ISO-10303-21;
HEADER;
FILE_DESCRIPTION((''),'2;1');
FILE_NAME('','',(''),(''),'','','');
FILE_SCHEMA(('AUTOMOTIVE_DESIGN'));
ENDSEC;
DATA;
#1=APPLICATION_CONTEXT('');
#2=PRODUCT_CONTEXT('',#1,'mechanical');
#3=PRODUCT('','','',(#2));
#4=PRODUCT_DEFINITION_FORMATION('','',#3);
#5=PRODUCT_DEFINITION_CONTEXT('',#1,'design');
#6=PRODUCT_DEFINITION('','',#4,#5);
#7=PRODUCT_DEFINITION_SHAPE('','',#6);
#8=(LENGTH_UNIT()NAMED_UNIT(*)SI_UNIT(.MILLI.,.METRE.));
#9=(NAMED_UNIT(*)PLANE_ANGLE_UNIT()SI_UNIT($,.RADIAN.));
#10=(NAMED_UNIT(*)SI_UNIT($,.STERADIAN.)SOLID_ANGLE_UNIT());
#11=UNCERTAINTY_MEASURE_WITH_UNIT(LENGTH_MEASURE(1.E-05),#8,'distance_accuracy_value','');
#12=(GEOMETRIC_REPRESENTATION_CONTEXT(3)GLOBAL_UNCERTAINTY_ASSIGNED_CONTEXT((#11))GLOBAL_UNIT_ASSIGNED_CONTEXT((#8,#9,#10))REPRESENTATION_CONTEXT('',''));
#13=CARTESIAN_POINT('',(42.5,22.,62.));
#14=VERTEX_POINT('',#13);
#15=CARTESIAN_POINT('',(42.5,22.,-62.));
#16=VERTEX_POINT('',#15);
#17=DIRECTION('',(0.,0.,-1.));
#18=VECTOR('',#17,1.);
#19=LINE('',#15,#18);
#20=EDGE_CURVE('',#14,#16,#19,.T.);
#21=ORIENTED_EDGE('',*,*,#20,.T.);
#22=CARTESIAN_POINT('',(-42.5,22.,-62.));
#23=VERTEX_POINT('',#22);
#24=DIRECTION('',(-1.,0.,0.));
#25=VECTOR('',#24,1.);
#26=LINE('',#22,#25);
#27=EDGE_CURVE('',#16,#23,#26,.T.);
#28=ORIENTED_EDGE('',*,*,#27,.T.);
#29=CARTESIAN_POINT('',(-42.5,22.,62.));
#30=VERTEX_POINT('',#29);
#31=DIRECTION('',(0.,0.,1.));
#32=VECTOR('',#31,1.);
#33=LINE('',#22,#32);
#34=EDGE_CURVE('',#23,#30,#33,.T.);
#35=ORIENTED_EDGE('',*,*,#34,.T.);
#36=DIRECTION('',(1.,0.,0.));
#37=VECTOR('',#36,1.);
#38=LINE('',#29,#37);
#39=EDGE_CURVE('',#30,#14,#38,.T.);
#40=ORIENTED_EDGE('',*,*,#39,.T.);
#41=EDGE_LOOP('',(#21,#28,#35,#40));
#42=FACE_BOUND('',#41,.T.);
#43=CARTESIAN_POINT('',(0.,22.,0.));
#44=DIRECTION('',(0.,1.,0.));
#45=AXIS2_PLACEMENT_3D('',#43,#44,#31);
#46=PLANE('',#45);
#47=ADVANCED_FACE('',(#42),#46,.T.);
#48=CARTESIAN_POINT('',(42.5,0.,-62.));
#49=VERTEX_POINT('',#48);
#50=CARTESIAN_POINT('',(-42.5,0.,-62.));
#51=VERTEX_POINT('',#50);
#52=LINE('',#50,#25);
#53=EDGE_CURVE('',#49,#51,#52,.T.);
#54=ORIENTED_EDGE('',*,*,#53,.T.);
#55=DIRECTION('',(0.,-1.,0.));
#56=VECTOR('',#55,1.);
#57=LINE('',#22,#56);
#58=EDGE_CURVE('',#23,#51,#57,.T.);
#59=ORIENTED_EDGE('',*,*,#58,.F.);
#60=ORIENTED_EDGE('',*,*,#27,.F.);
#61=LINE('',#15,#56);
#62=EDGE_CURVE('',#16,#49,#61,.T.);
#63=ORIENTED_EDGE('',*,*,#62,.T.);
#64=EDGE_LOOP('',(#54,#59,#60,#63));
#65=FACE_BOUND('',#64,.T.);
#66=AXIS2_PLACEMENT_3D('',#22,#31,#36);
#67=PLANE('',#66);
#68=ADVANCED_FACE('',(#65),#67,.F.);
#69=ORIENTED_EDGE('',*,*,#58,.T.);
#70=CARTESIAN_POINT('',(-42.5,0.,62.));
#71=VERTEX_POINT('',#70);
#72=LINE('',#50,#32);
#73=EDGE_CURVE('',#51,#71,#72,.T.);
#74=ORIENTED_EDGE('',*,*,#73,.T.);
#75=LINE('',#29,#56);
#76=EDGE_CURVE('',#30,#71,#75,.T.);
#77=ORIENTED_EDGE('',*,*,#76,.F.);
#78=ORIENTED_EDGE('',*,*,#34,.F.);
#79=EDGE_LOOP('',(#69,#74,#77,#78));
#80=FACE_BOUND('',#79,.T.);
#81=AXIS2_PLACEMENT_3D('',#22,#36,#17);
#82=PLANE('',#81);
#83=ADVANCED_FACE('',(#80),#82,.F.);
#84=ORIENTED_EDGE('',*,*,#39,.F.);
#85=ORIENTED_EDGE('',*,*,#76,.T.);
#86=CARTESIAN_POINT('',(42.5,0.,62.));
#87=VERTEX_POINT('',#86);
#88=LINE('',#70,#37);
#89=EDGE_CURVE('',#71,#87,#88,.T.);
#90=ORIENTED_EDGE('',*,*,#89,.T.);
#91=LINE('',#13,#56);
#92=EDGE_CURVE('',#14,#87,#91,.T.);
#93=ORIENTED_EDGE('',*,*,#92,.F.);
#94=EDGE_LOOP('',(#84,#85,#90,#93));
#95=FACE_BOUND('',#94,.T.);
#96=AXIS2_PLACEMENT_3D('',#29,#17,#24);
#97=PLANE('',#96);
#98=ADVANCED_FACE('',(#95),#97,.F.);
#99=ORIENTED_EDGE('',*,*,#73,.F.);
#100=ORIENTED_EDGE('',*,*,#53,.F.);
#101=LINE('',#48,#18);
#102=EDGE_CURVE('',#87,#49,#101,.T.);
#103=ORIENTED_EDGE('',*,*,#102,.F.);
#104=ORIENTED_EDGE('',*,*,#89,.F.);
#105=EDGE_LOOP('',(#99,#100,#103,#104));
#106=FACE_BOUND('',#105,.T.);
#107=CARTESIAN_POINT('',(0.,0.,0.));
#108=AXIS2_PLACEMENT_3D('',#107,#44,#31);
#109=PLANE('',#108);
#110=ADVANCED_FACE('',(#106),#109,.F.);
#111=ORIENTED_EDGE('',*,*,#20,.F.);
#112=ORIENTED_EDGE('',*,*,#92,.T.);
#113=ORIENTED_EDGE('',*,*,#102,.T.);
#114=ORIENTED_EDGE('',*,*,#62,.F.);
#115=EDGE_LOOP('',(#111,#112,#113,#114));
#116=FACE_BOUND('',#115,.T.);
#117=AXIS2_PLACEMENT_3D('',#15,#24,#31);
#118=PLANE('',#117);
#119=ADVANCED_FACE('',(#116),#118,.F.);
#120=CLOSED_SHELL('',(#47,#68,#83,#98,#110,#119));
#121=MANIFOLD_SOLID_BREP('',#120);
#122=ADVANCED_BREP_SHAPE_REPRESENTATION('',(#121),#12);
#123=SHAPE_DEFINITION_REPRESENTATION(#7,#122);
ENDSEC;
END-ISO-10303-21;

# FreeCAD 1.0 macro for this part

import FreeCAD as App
import Part
import Sketcher
from FreeCAD import Vector

doc = App.newDocument("Part")
body = doc.addObject("PartDesign::Body", "Body")

sketch1 = doc.addObject("Sketcher::SketchObject", "Sketch")
body.addObject(sketch1)
sketch1.AttachmentSupport = (doc.XZ_Plane, [""])
sketch1.MapMode = "FlatFace"
sketch1.addGeometry(Part.LineSegment(Vector(-42, -62, 0), Vector(-42, 62, 0)), False)
sketch1.addGeometry(Part.LineSegment(Vector(-42, 62, 0), Vector(42, 62, 0)), False)
sketch1.addGeometry(Part.LineSegment(Vector(42, 62, 0), Vector(42, -62, 0)), False)
sketch1.addGeometry(Part.LineSegment(Vector(42, -62, 0), Vector(-42, -62, 0)), False)
sketch1.addConstraint(Sketcher.Constraint("Coincident", 0, 2, 1, 1))
sketch1.addConstraint(Sketcher.Constraint("Coincident", 1, 2, 2, 1))
sketch1.addConstraint(Sketcher.Constraint("Coincident", 2, 2, 3, 1))
sketch1.addConstraint(Sketcher.Constraint("Coincident", 3, 2, 0, 1))
sketch1.addConstraint(Sketcher.Constraint("Vertical", 0))
sketch1.addConstraint(Sketcher.Constraint("Horizontal", 1))
sketch1.addConstraint(Sketcher.Constraint("Vertical", 2))
sketch1.addConstraint(Sketcher.Constraint("Horizontal", 3))
sketch1.addConstraint(Sketcher.Constraint("Symmetric", 0, 2, 2, 2, -1, 1))
sketch1.addConstraint(Sketcher.Constraint("DistanceX", 1, 1, 1, 2, 85.0))
sketch1.addConstraint(Sketcher.Constraint("DistanceY", 0, 1, 0, 2, 124.0))
pad1 = doc.addObject("PartDesign::Pad", "Pad")
body.addObject(pad1)
pad1.Profile = sketch1
pad1.Length = 22
pad1.Reversed = True

doc.recompute()
